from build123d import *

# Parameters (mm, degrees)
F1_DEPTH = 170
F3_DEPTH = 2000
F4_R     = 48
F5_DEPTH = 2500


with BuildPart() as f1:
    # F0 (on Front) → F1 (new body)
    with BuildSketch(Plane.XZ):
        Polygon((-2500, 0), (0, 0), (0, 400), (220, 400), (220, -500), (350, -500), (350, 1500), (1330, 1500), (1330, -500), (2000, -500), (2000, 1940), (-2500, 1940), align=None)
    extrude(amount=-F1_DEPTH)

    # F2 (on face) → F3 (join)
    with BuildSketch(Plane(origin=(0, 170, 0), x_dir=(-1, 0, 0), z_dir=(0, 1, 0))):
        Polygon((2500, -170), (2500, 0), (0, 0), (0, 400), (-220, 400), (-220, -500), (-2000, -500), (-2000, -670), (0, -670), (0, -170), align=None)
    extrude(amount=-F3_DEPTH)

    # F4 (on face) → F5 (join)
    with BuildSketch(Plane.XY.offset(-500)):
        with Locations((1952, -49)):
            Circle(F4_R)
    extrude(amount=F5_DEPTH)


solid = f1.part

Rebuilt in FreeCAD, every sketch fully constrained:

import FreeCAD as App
import Part
import Sketcher

V = App.Vector


def add_polygon(sketch, points):
    """Adds a closed chain of lines whose ends are joined by coincident constraints."""
    first, n = sketch.GeometryCount, len(points)
    for a, b in zip(points, points[1:] + points[:1]):
        sketch.addGeometry(Part.LineSegment(App.Vector(*a, 0), App.Vector(*b, 0)), False)
    for i in range(n):
        sketch.addConstraint(Sketcher.Constraint("Coincident", first + i, 2, first + (i + 1) % n, 1))

doc = App.newDocument("Part")
body = doc.addObject("PartDesign::Body", "Body")

# Sketch on XZ plane
sketch1 = body.newObject("Sketcher::SketchObject", "Sketch")
sketch1.AttachmentSupport = (doc.getObject("XZ_Plane"), [""])
sketch1.MapMode = "FlatFace"
add_polygon(sketch1, [(-2500, 0), (0, 0), (0, 400), (220, 400), (220, -500), (350, -500), (350, 1500), (1330, 1500), (1330, -500), (2000, -500), (2000, 1940), (-2500, 1940)])  # lines 0-11
sketch1.addConstraint(Sketcher.Constraint("Horizontal", 0))
sketch1.addConstraint(Sketcher.Constraint("Vertical", 1))
sketch1.addConstraint(Sketcher.Constraint("Horizontal", 2))
sketch1.addConstraint(Sketcher.Constraint("Vertical", 3))
sketch1.addConstraint(Sketcher.Constraint("Horizontal", 4))
sketch1.addConstraint(Sketcher.Constraint("Vertical", 5))
sketch1.addConstraint(Sketcher.Constraint("Horizontal", 6))
sketch1.addConstraint(Sketcher.Constraint("Vertical", 7))
sketch1.addConstraint(Sketcher.Constraint("Horizontal", 8))
sketch1.addConstraint(Sketcher.Constraint("Vertical", 9))
sketch1.addConstraint(Sketcher.Constraint("Horizontal", 10))
sketch1.addConstraint(Sketcher.Constraint("Vertical", 11))
sketch1.addConstraint(Sketcher.Constraint("Coincident", 0, 2, -1, 1))
sketch1.addConstraint(Sketcher.Constraint("Horizontal", 4, 2, 7, 2))
sketch1.addConstraint(Sketcher.Constraint("DistanceX", 0, 1, 0, 2, 2500.0))
sketch1.addConstraint(Sketcher.Constraint("DistanceX", 2, 1, 2, 2, 220.0))
sketch1.addConstraint(Sketcher.Constraint("DistanceX", 4, 1, 4, 2, 130.0))
sketch1.addConstraint(Sketcher.Constraint("DistanceX", 6, 1, 6, 2, 980.0))
sketch1.addConstraint(Sketcher.Constraint("DistanceX", 8, 1, 8, 2, 670.0))
sketch1.addConstraint(Sketcher.Constraint("DistanceY", 1, 1, 1, 2, 400.0))
sketch1.addConstraint(Sketcher.Constraint("DistanceY", 3, 2, 3, 1, 900.0))
sketch1.addConstraint(Sketcher.Constraint("DistanceY", 5, 1, 5, 2, 2000.0))
sketch1.addConstraint(Sketcher.Constraint("DistanceY", 9, 1, 9, 2, 2440.0))
pad1 = body.newObject("PartDesign::Pad", "Pad")
pad1.Profile = sketch1
pad1.Length = 170
pad1.Reversed = True

# Sketch on XZ plane
sketch2 = body.newObject("Sketcher::SketchObject", "Sketch001")
sketch2.AttachmentSupport = (doc.getObject("XZ_Plane"), [""])
sketch2.MapMode = "FlatFace"
sketch2.AttachmentOffset = App.Placement(V(0, 0, -170), App.Rotation())
add_polygon(sketch2, [(-2500, -170), (-2500, 0), (0, 0), (0, 400), (220, 400), (220, -500), (2000, -500), (2000, -670), (0, -670), (0, -170)])  # lines 0-9
sketch2.addConstraint(Sketcher.Constraint("Vertical", 0))
sketch2.addConstraint(Sketcher.Constraint("Horizontal", 1))
sketch2.addConstraint(Sketcher.Constraint("Vertical", 2))
sketch2.addConstraint(Sketcher.Constraint("Horizontal", 3))
sketch2.addConstraint(Sketcher.Constraint("Vertical", 4))
sketch2.addConstraint(Sketcher.Constraint("Horizontal", 5))
sketch2.addConstraint(Sketcher.Constraint("Vertical", 6))
sketch2.addConstraint(Sketcher.Constraint("Horizontal", 7))
sketch2.addConstraint(Sketcher.Constraint("Vertical", 8))
sketch2.addConstraint(Sketcher.Constraint("Horizontal", 9))
sketch2.addConstraint(Sketcher.Constraint("Coincident", 1, 2, -1, 1))
sketch2.addConstraint(Sketcher.Constraint("PointOnObject", 7, 2, -2))
sketch2.addConstraint(Sketcher.Constraint("Equal", 0, 6))
sketch2.addConstraint(Sketcher.Constraint("DistanceX", 1, 1, 1, 2, 2500.0))
sketch2.addConstraint(Sketcher.Constraint("DistanceX", 3, 1, 3, 2, 220.0))
sketch2.addConstraint(Sketcher.Constraint("DistanceX", 5, 1, 5, 2, 1780.0))
sketch2.addConstraint(Sketcher.Constraint("DistanceY", 0, 1, 0, 2, 170.0))
sketch2.addConstraint(Sketcher.Constraint("DistanceY", 2, 1, 2, 2, 400.0))
sketch2.addConstraint(Sketcher.Constraint("DistanceY", 4, 2, 4, 1, 900.0))
pad2 = body.newObject("PartDesign::Pad", "Pad001")
pad2.Profile = sketch2
pad2.Length = 2000

# Sketch on XY plane
sketch3 = body.newObject("Sketcher::SketchObject", "Sketch002")
sketch3.AttachmentSupport = (doc.getObject("XY_Plane"), [""])
sketch3.MapMode = "FlatFace"
sketch3.AttachmentOffset = App.Placement(V(0, 0, -500), App.Rotation())
sketch3.addGeometry(Part.Circle(V(1952, -49, 0), V(0, 0, 1), 48), False)
sketch3.addConstraint(Sketcher.Constraint("Diameter", 0, 96.0))
sketch3.addConstraint(Sketcher.Constraint("DistanceX", -1, 1, 0, 3, 1952.0))
sketch3.addConstraint(Sketcher.Constraint("DistanceY", 0, 3, -1, 1, 49.0))
pad3 = body.newObject("PartDesign::Pad", "Pad002")
pad3.Profile = sketch3
pad3.Length = 2500

doc.recompute()
